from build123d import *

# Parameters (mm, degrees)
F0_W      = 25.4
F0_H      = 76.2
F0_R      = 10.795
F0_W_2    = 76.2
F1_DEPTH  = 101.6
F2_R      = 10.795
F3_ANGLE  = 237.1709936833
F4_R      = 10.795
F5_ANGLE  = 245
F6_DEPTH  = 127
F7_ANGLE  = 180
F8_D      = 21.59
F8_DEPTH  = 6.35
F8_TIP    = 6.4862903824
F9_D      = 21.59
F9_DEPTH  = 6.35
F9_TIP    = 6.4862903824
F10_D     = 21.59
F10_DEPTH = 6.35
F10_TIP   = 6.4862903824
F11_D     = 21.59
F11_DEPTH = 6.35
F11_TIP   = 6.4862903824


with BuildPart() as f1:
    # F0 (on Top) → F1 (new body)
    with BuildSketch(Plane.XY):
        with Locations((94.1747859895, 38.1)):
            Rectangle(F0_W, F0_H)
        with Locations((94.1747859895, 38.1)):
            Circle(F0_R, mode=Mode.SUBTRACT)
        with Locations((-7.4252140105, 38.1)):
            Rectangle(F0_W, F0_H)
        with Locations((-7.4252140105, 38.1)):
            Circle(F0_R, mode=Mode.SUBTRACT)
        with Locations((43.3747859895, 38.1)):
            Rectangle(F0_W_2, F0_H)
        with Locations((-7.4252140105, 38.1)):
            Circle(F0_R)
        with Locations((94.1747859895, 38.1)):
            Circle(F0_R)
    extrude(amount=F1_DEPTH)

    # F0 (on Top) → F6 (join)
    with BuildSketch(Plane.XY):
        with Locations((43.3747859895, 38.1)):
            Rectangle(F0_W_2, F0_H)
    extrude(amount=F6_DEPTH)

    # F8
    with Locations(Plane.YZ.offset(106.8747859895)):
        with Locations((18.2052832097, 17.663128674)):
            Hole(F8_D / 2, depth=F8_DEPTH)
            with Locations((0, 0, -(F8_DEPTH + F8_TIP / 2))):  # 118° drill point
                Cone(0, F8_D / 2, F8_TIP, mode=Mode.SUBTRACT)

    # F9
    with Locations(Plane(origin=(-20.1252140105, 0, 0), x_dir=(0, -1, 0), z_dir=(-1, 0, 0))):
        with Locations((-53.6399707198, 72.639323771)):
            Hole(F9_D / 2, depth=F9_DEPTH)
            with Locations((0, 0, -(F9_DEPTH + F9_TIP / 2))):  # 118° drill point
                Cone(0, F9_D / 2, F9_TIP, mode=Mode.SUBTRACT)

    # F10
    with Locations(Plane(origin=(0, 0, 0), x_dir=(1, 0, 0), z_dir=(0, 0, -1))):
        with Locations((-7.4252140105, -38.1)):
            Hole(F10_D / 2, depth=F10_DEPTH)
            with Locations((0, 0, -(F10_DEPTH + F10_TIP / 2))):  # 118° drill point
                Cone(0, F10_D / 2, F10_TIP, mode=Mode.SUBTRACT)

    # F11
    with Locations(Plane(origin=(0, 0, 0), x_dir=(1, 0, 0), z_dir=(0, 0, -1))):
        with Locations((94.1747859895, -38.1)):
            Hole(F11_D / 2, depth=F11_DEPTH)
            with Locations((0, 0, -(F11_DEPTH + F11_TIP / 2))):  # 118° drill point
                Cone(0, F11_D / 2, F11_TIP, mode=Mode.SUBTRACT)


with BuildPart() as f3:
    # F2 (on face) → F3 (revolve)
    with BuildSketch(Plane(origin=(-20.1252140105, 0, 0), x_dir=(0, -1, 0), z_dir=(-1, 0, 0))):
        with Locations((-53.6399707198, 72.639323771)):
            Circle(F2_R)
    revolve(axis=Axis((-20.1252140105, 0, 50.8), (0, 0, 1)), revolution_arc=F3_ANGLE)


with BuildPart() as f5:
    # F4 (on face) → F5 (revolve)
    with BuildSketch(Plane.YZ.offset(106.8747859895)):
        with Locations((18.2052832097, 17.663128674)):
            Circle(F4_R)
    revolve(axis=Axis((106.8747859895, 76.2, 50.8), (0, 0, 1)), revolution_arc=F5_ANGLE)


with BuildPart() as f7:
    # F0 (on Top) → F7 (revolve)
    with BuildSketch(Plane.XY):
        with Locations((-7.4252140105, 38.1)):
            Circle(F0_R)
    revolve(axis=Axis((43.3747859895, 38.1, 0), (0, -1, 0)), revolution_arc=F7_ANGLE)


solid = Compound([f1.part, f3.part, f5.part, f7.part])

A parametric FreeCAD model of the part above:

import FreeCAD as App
import Part
import Sketcher
from FreeCAD import Vector
Q = App.Units.Quantity

doc = App.newDocument("Part")
body = doc.addObject("PartDesign::Body", "Body")

# Sketch on XY plane
sketch1 = doc.addObject("Sketcher::SketchObject", "Sketch")
body.addObject(sketch1)
sketch1.AttachmentSupport = (doc.XY_Plane, [""])
sketch1.MapMode = "FlatFace"
sketch1.addGeometry(Part.LineSegment(Vector(107, 0, 0), Vector(107, 76, 0)), False)
sketch1.addGeometry(Part.LineSegment(Vector(107, 76, 0), Vector(-20, 76, 0)), False)
sketch1.addGeometry(Part.LineSegment(Vector(-20, 76, 0), Vector(-20, 0, 0)), False)
sketch1.addGeometry(Part.LineSegment(Vector(-20, 0, 0), Vector(107, 0, 0)), False)
sketch1.addConstraint(Sketcher.Constraint("Coincident", 0, 2, 1, 1))
sketch1.addConstraint(Sketcher.Constraint("Coincident", 1, 2, 2, 1))
sketch1.addConstraint(Sketcher.Constraint("Coincident", 2, 2, 3, 1))
sketch1.addConstraint(Sketcher.Constraint("Coincident", 3, 2, 0, 1))
sketch1.addConstraint(Sketcher.Constraint("Vertical", 0))
sketch1.addConstraint(Sketcher.Constraint("Horizontal", 1))
sketch1.addConstraint(Sketcher.Constraint("Vertical", 2))
sketch1.addConstraint(Sketcher.Constraint("Horizontal", 3))
sketch1.addConstraint(Sketcher.Constraint("PointOnObject", 2, 2, -1))
sketch1.addConstraint(Sketcher.Constraint("DistanceX", 1, 2, 1, 1, Q("5 in")))
sketch1.addConstraint(Sketcher.Constraint("DistanceY", 0, 1, 0, 2, Q("3 in")))
sketch1.addConstraint(Sketcher.Constraint("DistanceX", -1, 1, 0, 2, Q("106.874786 mm")))
pad1 = doc.addObject("PartDesign::Pad", "Pad")
body.addObject(pad1)
pad1.Profile = sketch1
pad1.Length = Q("4 in")

# Sketch on XY plane
sketch2 = doc.addObject("Sketcher::SketchObject", "Sketch001")
body.addObject(sketch2)
sketch2.AttachmentSupport = (doc.XY_Plane, [""])
sketch2.MapMode = "FlatFace"
sketch2.addGeometry(Part.LineSegment(Vector(5, 76, 0), Vector(5, 0, 0)), False)
sketch2.addGeometry(Part.LineSegment(Vector(5, 0, 0), Vector(81, 0, 0)), False)
sketch2.addGeometry(Part.LineSegment(Vector(81, 0, 0), Vector(81, 76, 0)), False)
sketch2.addGeometry(Part.LineSegment(Vector(81, 76, 0), Vector(5, 76, 0)), False)
sketch2.addConstraint(Sketcher.Constraint("Coincident", 0, 2, 1, 1))
sketch2.addConstraint(Sketcher.Constraint("Coincident", 1, 2, 2, 1))
sketch2.addConstraint(Sketcher.Constraint("Coincident", 2, 2, 3, 1))
sketch2.addConstraint(Sketcher.Constraint("Coincident", 3, 2, 0, 1))
sketch2.addConstraint(Sketcher.Constraint("Vertical", 0))
sketch2.addConstraint(Sketcher.Constraint("Horizontal", 1))
sketch2.addConstraint(Sketcher.Constraint("Vertical", 2))
sketch2.addConstraint(Sketcher.Constraint("Horizontal", 3))
sketch2.addConstraint(Sketcher.Constraint("PointOnObject", 0, 2, -1))
sketch2.addConstraint(Sketcher.Constraint("Equal", 3, 0))
sketch2.addConstraint(Sketcher.Constraint("DistanceX", 1, 1, 1, 2, Q("3 in")))
sketch2.addConstraint(Sketcher.Constraint("DistanceX", -1, 1, 0, 2, Q("5.274786 mm")))
pad2 = doc.addObject("PartDesign::Pad", "Pad001")
body.addObject(pad2)
pad2.Profile = sketch2
pad2.Length = Q("5 in")

# Sketch on YZ plane
sketch3 = doc.addObject("Sketcher::SketchObject", "Sketch002")
body.addObject(sketch3)
sketch3.AttachmentSupport = (doc.YZ_Plane, [""])
sketch3.MapMode = "FlatFace"
sketch3.AttachmentOffset = App.Placement(Vector(0, 0, 106.874786), App.Rotation())
sketch3.addGeometry(Part.Circle(Vector(18, 18, 0), Vector(0, 0, 1), 11), False)
sketch3.addConstraint(Sketcher.Constraint("Diameter", 0, Q("0.85 in")))
sketch3.addConstraint(Sketcher.Constraint("DistanceY", -1, 1, 0, 3, Q("17.663129 mm")))
sketch3.addConstraint(Sketcher.Constraint("DistanceX", -1, 1, 0, 3, Q("18.205283 mm")))
doc.recompute()
hole = doc.addObject("PartDesign::Hole", "Hole")
body.addObject(hole)
hole.Profile = sketch3
hole.ThreadType = "None"
hole.Diameter = Q("0.85 in")
hole.DepthType = "Dimension"
hole.Depth = Q("0.25 in")
hole.DrillPoint = "Angled"
hole.DrillPointAngle = 118

# Sketch on YZ plane
sketch4 = doc.addObject("Sketcher::SketchObject", "Sketch003")
body.addObject(sketch4)
sketch4.AttachmentSupport = (doc.YZ_Plane, [""])
sketch4.MapMode = "FlatFace"
sketch4.AttachmentOffset = App.Placement(Vector(0, 0, -20.125214), App.Rotation())
sketch4.addGeometry(Part.Circle(Vector(54, 73, 0), Vector(0, 0, 1), 11), False)
sketch4.addConstraint(Sketcher.Constraint("Diameter", 0, Q("0.85 in")))
sketch4.addConstraint(Sketcher.Constraint("DistanceX", -1, 1, 0, 3, Q("53.639971 mm")))
sketch4.addConstraint(Sketcher.Constraint("DistanceY", -1, 1, 0, 3, Q("72.639324 mm")))
doc.recompute()
hole2 = doc.addObject("PartDesign::Hole", "Hole001")
body.addObject(hole2)
hole2.Profile = sketch4
hole2.ThreadType = "None"
hole2.Diameter = Q("0.85 in")
hole2.DepthType = "Dimension"
hole2.Depth = Q("0.25 in")
hole2.DrillPoint = "Angled"
hole2.DrillPointAngle = 118
hole2.Reversed = True

# Sketch on XY plane
sketch5 = doc.addObject("Sketcher::SketchObject", "Sketch004")
body.addObject(sketch5)
sketch5.AttachmentSupport = (doc.XY_Plane, [""])
sketch5.MapMode = "FlatFace"
sketch5.addGeometry(Part.Circle(Vector(-7, 38, 0), Vector(0, 0, 1), 11), False)
sketch5.addConstraint(Sketcher.Constraint("Diameter", 0, Q("0.85 in")))
sketch5.addConstraint(Sketcher.Constraint("DistanceY", -1, 1, 0, 3, Q("1.5 in")))
sketch5.addConstraint(Sketcher.Constraint("DistanceX", 0, 3, -1, 1, Q("7.425214 mm")))
doc.recompute()
hole3 = doc.addObject("PartDesign::Hole", "Hole002")
body.addObject(hole3)
hole3.Profile = sketch5
hole3.ThreadType = "None"
hole3.Diameter = Q("0.85 in")
hole3.DepthType = "Dimension"
hole3.Depth = Q("0.25 in")
hole3.DrillPoint = "Angled"
hole3.DrillPointAngle = 118
hole3.Reversed = True

# Sketch on XY plane
sketch6 = doc.addObject("Sketcher::SketchObject", "Sketch005")
body.addObject(sketch6)
sketch6.AttachmentSupport = (doc.XY_Plane, [""])
sketch6.MapMode = "FlatFace"
sketch6.addGeometry(Part.Circle(Vector(94, 38, 0), Vector(0, 0, 1), 11), False)
sketch6.addConstraint(Sketcher.Constraint("Diameter", 0, Q("0.85 in")))
sketch6.addConstraint(Sketcher.Constraint("DistanceY", -1, 1, 0, 3, Q("1.5 in")))
sketch6.addConstraint(Sketcher.Constraint("DistanceX", -1, 1, 0, 3, Q("94.174786 mm")))
doc.recompute()
hole4 = doc.addObject("PartDesign::Hole", "Hole003")
body.addObject(hole4)
hole4.Profile = sketch6
hole4.ThreadType = "None"
hole4.Diameter = Q("0.85 in")
hole4.DepthType = "Dimension"
hole4.Depth = Q("0.25 in")
hole4.DrillPoint = "Angled"
hole4.DrillPointAngle = 118
hole4.Reversed = True
body2 = doc.addObject("PartDesign::Body", "Body001")

# Sketch on YZ plane
sketch7 = doc.addObject("Sketcher::SketchObject", "Sketch006")
body2.addObject(sketch7)
sketch7.AttachmentSupport = (doc.getObject("YZ_Plane001"), [""])
sketch7.MapMode = "FlatFace"
sketch7.AttachmentOffset = App.Placement(Vector(0, 0, -20.125214), App.Rotation())
sketch7.addGeometry(Part.Circle(Vector(54, 73, 0), Vector(0, 0, 1), 11), False)
sketch7.addConstraint(Sketcher.Constraint("Diameter", 0, Q("0.85 in")))
sketch7.addConstraint(Sketcher.Constraint("DistanceX", -1, 1, 0, 3, Q("53.639971 mm")))
sketch7.addConstraint(Sketcher.Constraint("DistanceY", -1, 1, 0, 3, Q("72.639324 mm")))
revolution = doc.addObject("PartDesign::Revolution", "Revolution")
body2.addObject(revolution)
revolution.Profile = sketch7
revolution.ReferenceAxis = (sketch7, ["V_Axis"])
revolution.Angle = 237.170994
body3 = doc.addObject("PartDesign::Body", "Body002")

# Sketch on YZ plane
sketch8 = doc.addObject("Sketcher::SketchObject", "Sketch007")
body3.addObject(sketch8)
sketch8.AttachmentSupport = (doc.getObject("YZ_Plane002"), [""])
sketch8.MapMode = "FlatFace"
sketch8.AttachmentOffset = App.Placement(Vector(0, 0, 106.874786), App.Rotation())
sketch8.addGeometry(Part.Circle(Vector(18, 18, 0), Vector(0, 0, 1), 11), False)
sketch8.addGeometry(Part.LineSegment(Vector(76, 18, 0), Vector(76, 28, 0)), True)  # axis
sketch8.addConstraint(Sketcher.Constraint("Vertical", 1))
sketch8.addConstraint(Sketcher.Constraint("Horizontal", 0, 3, 1, 1))
sketch8.addConstraint(Sketcher.Constraint("Diameter", 0, Q("0.85 in")))
sketch8.addConstraint(Sketcher.Constraint("DistanceX", -1, 1, 1, 1, Q("3 in")))
sketch8.addConstraint(Sketcher.Constraint("DistanceY", 1, 1, 1, 2, Q("10 mm")))
sketch8.addConstraint(Sketcher.Constraint("DistanceY", -1, 1, 0, 3, Q("17.663129 mm")))
sketch8.addConstraint(Sketcher.Constraint("DistanceX", -1, 1, 0, 3, Q("18.205283 mm")))
revolution2 = doc.addObject("PartDesign::Revolution", "Revolution001")
body3.addObject(revolution2)
revolution2.Profile = sketch8
revolution2.ReferenceAxis = (sketch8, ["Axis0"])
revolution2.Angle = 245
body4 = doc.addObject("PartDesign::Body", "Body003")

# Sketch on XY plane
sketch9 = doc.addObject("Sketcher::SketchObject", "Sketch008")
body4.addObject(sketch9)
sketch9.AttachmentSupport = (doc.getObject("XY_Plane003"), [""])
sketch9.MapMode = "FlatFace"
sketch9.addGeometry(Part.Circle(Vector(-7, 38, 0), Vector(0, 0, 1), 11), False)
sketch9.addGeometry(Part.LineSegment(Vector(43, 38, 0), Vector(43, 28, 0)), True)  # axis
sketch9.addConstraint(Sketcher.Constraint("Vertical", 1))
sketch9.addConstraint(Sketcher.Constraint("Horizontal", 0, 3, 1, 1))
sketch9.addConstraint(Sketcher.Constraint("Diameter", 0, Q("0.85 in")))
sketch9.addConstraint(Sketcher.Constraint("DistanceX", 0, 3, 1, 1, Q("2 in")))
sketch9.addConstraint(Sketcher.Constraint("DistanceY", -1, 1, 0, 3, Q("1.5 in")))
sketch9.addConstraint(Sketcher.Constraint("DistanceY", 1, 2, 1, 1, Q("10 mm")))
sketch9.addConstraint(Sketcher.Constraint("DistanceX", 0, 3, -1, 1, Q("7.425214 mm")))
revolution3 = doc.addObject("PartDesign::Revolution", "Revolution002")
body4.addObject(revolution3)
revolution3.Profile = sketch9
revolution3.ReferenceAxis = (sketch9, ["Axis0"])
revolution3.Angle = 180

doc.recompute()
